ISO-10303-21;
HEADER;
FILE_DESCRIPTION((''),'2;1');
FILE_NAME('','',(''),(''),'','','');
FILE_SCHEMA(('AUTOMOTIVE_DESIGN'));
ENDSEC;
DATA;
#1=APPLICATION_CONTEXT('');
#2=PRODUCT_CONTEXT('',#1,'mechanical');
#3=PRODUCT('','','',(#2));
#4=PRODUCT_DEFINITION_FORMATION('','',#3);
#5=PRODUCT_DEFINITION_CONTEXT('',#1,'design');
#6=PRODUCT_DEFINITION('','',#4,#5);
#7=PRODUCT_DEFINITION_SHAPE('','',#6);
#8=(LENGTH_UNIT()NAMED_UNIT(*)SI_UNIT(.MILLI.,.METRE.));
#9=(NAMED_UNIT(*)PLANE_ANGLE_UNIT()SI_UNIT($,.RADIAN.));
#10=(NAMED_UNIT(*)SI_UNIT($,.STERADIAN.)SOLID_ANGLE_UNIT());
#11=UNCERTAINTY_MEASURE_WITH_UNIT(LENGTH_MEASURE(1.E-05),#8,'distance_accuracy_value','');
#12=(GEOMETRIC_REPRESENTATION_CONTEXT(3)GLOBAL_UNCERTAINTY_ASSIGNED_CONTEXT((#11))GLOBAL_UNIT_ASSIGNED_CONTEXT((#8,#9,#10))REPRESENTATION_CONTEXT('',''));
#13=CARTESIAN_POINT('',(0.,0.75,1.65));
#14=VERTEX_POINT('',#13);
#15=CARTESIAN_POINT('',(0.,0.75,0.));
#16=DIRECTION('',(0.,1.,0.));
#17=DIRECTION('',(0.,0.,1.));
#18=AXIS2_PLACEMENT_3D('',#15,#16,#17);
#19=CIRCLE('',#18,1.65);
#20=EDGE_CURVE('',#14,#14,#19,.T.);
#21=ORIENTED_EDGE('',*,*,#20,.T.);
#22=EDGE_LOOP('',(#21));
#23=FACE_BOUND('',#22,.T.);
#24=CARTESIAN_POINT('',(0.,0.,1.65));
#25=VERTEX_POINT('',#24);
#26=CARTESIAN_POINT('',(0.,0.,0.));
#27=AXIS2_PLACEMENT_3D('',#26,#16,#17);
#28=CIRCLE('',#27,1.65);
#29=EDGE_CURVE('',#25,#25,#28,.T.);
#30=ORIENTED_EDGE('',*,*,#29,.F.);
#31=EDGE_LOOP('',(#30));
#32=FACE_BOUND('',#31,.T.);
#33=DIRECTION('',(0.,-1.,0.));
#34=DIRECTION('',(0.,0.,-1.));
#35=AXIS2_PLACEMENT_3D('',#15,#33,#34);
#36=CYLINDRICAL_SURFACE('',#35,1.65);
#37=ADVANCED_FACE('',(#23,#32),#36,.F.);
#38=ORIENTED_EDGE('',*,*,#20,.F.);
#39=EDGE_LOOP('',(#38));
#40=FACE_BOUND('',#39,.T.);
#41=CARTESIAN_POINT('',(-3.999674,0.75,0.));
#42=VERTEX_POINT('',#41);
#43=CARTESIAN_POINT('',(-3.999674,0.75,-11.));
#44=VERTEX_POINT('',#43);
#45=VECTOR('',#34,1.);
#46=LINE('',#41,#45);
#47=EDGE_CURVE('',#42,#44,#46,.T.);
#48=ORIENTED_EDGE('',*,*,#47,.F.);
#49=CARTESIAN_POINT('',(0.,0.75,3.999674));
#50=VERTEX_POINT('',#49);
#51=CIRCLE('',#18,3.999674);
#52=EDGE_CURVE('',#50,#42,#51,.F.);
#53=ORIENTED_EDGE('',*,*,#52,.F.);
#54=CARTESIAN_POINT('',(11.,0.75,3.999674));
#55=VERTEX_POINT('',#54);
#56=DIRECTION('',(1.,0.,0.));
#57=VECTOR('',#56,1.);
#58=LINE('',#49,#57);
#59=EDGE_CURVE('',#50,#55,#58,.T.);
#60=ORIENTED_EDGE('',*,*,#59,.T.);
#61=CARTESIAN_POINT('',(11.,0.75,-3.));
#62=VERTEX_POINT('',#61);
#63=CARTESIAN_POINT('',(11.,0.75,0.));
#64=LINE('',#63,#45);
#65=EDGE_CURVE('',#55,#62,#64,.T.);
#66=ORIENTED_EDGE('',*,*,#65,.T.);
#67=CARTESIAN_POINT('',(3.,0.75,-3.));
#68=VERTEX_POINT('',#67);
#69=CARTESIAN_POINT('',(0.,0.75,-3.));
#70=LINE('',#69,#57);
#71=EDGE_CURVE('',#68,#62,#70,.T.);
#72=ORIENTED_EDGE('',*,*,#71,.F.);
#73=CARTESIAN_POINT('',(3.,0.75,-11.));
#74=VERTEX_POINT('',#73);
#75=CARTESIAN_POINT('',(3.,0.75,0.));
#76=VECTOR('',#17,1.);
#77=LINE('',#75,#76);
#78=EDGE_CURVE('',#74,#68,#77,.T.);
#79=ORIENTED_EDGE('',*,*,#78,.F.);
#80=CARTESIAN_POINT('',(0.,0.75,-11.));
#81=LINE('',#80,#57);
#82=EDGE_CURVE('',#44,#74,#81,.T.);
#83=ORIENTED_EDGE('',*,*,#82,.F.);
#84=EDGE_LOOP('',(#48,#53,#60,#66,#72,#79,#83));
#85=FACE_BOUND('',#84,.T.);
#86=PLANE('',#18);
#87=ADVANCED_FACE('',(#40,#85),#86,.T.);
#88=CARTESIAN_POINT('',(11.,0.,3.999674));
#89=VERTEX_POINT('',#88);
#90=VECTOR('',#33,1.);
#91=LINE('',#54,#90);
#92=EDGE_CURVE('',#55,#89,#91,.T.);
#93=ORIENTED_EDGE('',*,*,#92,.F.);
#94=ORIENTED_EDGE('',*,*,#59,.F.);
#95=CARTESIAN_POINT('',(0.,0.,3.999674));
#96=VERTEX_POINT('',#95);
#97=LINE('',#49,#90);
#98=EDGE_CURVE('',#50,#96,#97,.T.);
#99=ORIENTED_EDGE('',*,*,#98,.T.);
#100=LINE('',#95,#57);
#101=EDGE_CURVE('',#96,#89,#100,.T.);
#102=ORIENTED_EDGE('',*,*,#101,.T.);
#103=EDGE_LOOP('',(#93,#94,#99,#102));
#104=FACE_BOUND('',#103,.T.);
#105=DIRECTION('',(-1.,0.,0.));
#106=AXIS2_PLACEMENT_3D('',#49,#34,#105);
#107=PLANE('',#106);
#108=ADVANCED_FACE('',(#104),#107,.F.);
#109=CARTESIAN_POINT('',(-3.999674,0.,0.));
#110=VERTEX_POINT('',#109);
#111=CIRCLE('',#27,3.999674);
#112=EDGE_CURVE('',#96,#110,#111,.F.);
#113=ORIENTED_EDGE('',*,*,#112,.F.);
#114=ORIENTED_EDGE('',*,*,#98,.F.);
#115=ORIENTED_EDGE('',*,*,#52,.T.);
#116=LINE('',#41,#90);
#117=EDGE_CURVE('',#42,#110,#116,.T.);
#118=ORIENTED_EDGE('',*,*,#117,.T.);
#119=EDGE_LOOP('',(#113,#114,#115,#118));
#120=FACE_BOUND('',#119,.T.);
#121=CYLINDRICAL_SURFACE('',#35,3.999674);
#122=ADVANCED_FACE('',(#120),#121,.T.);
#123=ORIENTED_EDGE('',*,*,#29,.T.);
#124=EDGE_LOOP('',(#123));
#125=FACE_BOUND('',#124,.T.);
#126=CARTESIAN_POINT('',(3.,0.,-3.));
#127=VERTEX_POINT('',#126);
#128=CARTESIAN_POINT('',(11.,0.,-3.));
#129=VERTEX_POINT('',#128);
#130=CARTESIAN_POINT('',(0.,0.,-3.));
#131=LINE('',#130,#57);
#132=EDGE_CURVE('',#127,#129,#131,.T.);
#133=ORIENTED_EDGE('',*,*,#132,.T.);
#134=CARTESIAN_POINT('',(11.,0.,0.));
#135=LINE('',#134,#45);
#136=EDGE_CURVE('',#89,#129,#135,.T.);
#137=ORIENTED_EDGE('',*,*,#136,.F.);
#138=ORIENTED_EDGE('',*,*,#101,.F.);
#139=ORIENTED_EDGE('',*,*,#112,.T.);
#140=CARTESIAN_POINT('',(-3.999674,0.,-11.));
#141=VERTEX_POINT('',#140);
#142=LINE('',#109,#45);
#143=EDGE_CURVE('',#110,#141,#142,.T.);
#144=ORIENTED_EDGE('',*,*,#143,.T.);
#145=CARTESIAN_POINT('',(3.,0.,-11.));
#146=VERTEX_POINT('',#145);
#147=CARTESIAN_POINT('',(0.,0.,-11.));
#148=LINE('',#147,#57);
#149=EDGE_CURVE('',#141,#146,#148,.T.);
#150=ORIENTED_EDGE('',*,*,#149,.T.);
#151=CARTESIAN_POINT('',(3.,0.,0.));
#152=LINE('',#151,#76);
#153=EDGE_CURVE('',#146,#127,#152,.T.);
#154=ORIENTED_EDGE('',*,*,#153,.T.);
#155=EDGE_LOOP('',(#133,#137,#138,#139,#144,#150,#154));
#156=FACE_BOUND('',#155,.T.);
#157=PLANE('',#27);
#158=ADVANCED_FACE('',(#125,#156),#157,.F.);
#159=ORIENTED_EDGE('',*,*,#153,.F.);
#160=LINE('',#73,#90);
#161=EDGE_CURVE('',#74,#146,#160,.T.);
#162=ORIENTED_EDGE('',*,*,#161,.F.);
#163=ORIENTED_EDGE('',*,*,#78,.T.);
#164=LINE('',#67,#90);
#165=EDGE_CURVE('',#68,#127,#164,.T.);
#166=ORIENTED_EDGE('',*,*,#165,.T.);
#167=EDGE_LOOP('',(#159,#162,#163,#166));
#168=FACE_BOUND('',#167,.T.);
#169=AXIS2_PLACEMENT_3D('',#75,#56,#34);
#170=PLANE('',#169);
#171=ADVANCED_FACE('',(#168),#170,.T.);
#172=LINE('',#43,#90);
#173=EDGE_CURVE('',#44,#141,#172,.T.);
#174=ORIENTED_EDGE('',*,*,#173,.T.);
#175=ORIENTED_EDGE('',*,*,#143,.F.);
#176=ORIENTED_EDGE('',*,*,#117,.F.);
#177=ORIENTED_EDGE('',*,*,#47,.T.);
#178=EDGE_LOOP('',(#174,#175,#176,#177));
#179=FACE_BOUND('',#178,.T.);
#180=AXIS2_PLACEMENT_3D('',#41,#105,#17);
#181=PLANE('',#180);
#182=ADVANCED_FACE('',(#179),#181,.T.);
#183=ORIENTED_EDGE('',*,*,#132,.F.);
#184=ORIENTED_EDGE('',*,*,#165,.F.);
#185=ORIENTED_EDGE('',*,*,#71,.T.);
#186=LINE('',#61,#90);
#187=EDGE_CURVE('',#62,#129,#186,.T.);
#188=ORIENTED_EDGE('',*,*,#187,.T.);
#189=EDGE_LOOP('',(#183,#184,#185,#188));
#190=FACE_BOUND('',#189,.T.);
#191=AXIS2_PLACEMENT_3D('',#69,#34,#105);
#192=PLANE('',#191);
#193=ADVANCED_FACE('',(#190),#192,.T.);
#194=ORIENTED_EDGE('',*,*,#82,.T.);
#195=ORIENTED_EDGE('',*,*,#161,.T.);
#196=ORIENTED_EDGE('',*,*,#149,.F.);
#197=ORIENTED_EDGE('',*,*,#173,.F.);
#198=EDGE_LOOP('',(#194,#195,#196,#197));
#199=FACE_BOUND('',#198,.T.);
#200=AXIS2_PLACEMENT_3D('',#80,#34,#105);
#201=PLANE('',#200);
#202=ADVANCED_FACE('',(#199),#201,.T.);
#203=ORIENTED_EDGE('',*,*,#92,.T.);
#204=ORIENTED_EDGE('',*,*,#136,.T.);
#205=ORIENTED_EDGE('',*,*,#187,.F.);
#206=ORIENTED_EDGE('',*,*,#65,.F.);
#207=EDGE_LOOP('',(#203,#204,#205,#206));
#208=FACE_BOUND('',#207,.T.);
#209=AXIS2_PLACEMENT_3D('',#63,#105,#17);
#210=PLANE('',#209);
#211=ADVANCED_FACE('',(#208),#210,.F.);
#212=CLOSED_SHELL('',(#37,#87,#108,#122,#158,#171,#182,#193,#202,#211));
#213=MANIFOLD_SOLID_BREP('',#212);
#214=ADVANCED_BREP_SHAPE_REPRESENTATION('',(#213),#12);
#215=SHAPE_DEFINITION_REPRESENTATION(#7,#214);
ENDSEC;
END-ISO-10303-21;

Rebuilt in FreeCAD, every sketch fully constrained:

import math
import FreeCAD as App
import Part
import Sketcher

doc = App.newDocument("Part")
params = doc.addObject("Spreadsheet::Sheet", "Params")
for row, (alias, value) in enumerate([
    ("sketch1_diameter", "3.3 mm"),
    ("sketch1_width", "8 mm"),
    ("sketch1_width2", "11 mm"),
    ("pad1_length", "0.75 mm"),
], start=1):
    params.set(f"A{row}", alias)
    params.set(f"B{row}", "=" + value)
    params.setAlias(f"B{row}", alias)

body = doc.addObject("PartDesign::Body", "Body")

sketch1 = body.newObject("Sketcher::SketchObject", "Sketch")
sketch1.AttachmentSupport = (doc.getObject("XZ_Plane"), [""])
sketch1.MapMode = "FlatFace"
sketch1.addGeometry([
    Part.LineSegment(App.Vector(11, 4, 0), App.Vector(11, -3, 0)),
    Part.LineSegment(App.Vector(11, -3, 0), App.Vector(3, -3, 0)),
    Part.LineSegment(App.Vector(3, -3, 0), App.Vector(3, -11, 0)),
    Part.LineSegment(App.Vector(3, -11, 0), App.Vector(-4, -11, 0)),
    Part.LineSegment(App.Vector(-4, -11, 0), App.Vector(-4, 0, 0)),
    Part.ArcOfCircle(Part.Circle(App.Vector(0, 0, 0), App.Vector(0, 0, 1), 4), math.radians(90), math.radians(180)),
    Part.LineSegment(App.Vector(0, 4, 0), App.Vector(11, 4, 0)),
    Part.Circle(App.Vector(0, 0, 0), App.Vector(0, 0, 1), 1.6),
], False)
sketch1.addConstraint([
    Sketcher.Constraint("Coincident", 0, 2, 1, 1),
    Sketcher.Constraint("Coincident", 1, 2, 2, 1),
    Sketcher.Constraint("Coincident", 2, 2, 3, 1),
    Sketcher.Constraint("Coincident", 3, 2, 4, 1),
    Sketcher.Constraint("Tangent", 4, 2, 5, 2),
    Sketcher.Constraint("Tangent", 5, 1, 6, 1),
    Sketcher.Constraint("Coincident", 6, 2, 0, 1),
    Sketcher.Constraint("Vertical", 0),
    Sketcher.Constraint("Horizontal", 1),
    Sketcher.Constraint("Vertical", 2),
    Sketcher.Constraint("Horizontal", 3),
    Sketcher.Constraint("Vertical", 4),
    Sketcher.Constraint("Horizontal", 6),
    Sketcher.Constraint("Coincident", 5, 3, -1, 1),
    Sketcher.Constraint("Coincident", 7, 3, -1, 1),
    Sketcher.Constraint("Equal", 3, 0),
    Sketcher.Constraint("Equal", 1, 2),
    Sketcher.Constraint("Diameter", 7, 3.3),
    Sketcher.Constraint("DistanceX", 1, 2, 1, 1, 8.0),
    Sketcher.Constraint("DistanceX", 6, 1, 6, 2, 11.0),
    Sketcher.Constraint("Radius", 5, 3.999674),
])
sketch1.setExpression("Constraints[17]", "Params.sketch1_diameter")
sketch1.setExpression("Constraints[18]", "Params.sketch1_width")
sketch1.setExpression("Constraints[19]", "Params.sketch1_width2")
pad1 = body.newObject("PartDesign::Pad", "Pad")
pad1.Profile = sketch1
pad1.setExpression("Length", "Params.pad1_length")
pad1.Reversed = True

doc.recompute()
